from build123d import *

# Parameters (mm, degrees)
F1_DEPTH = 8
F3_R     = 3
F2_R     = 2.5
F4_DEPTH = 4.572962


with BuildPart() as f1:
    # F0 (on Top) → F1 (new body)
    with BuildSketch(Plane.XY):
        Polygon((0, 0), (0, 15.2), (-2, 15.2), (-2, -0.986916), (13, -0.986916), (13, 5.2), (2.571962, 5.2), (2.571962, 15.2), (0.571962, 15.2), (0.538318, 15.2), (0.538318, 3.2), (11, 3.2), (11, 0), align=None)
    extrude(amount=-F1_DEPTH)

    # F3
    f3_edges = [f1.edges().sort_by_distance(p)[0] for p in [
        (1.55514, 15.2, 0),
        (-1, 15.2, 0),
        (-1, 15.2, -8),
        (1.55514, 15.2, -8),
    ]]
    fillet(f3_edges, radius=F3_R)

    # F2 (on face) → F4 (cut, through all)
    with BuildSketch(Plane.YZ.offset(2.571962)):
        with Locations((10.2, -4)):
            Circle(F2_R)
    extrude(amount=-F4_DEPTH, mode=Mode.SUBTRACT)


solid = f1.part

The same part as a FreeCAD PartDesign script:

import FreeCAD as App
import Part
import Sketcher


def edges_at(feature, points):
    """Names of the edges that pass closest to the given points."""
    edges = feature.Shape.Edges
    near = lambda p: min(range(len(edges)), key=lambda i: edges[i].distToShape(Part.Vertex(*p))[0])
    return sorted({f"Edge{near(p) + 1}" for p in points})

doc = App.newDocument("Part")
body = doc.addObject("PartDesign::Body", "Body")

sketch1 = body.newObject("Sketcher::SketchObject", "Sketch")
sketch1.AttachmentSupport = (doc.getObject("XY_Plane"), [""])
sketch1.MapMode = "FlatFace"
sketch1.addGeometry(Part.LineSegment(App.Vector(0, 0, 0), App.Vector(0, 15.2, 0)), False)
sketch1.addGeometry(Part.LineSegment(App.Vector(0, 15.2, 0), App.Vector(-2, 15.2, 0)), False)
sketch1.addGeometry(Part.LineSegment(App.Vector(-2, 15.2, 0), App.Vector(-2, -1, 0)), False)
sketch1.addGeometry(Part.LineSegment(App.Vector(-2, -1, 0), App.Vector(13, -1, 0)), False)
sketch1.addGeometry(Part.LineSegment(App.Vector(13, -1, 0), App.Vector(13, 5.2, 0)), False)
sketch1.addGeometry(Part.LineSegment(App.Vector(13, 5.2, 0), App.Vector(2.6, 5.2, 0)), False)
sketch1.addGeometry(Part.LineSegment(App.Vector(2.6, 5.2, 0), App.Vector(2.6, 15.2, 0)), False)
sketch1.addGeometry(Part.LineSegment(App.Vector(2.6, 15.2, 0), App.Vector(0.5, 15.2, 0)), False)
sketch1.addGeometry(Part.LineSegment(App.Vector(0.5, 15.2, 0), App.Vector(0.5, 3.2, 0)), False)
sketch1.addGeometry(Part.LineSegment(App.Vector(0.5, 3.2, 0), App.Vector(11, 3.2, 0)), False)
sketch1.addGeometry(Part.LineSegment(App.Vector(11, 3.2, 0), App.Vector(11, 0, 0)), False)
sketch1.addGeometry(Part.LineSegment(App.Vector(11, 0, 0), App.Vector(0, 0, 0)), False)
sketch1.addConstraint(Sketcher.Constraint("Coincident", 0, 2, 1, 1))
sketch1.addConstraint(Sketcher.Constraint("Coincident", 1, 2, 2, 1))
sketch1.addConstraint(Sketcher.Constraint("Coincident", 2, 2, 3, 1))
sketch1.addConstraint(Sketcher.Constraint("Coincident", 3, 2, 4, 1))
sketch1.addConstraint(Sketcher.Constraint("Coincident", 4, 2, 5, 1))
sketch1.addConstraint(Sketcher.Constraint("Coincident", 5, 2, 6, 1))
sketch1.addConstraint(Sketcher.Constraint("Coincident", 6, 2, 7, 1))
sketch1.addConstraint(Sketcher.Constraint("Coincident", 7, 2, 8, 1))
sketch1.addConstraint(Sketcher.Constraint("Coincident", 8, 2, 9, 1))
sketch1.addConstraint(Sketcher.Constraint("Coincident", 9, 2, 10, 1))
sketch1.addConstraint(Sketcher.Constraint("Coincident", 10, 2, 11, 1))
sketch1.addConstraint(Sketcher.Constraint("Coincident", 11, 2, 0, 1))
sketch1.addConstraint(Sketcher.Constraint("Vertical", 0))
sketch1.addConstraint(Sketcher.Constraint("Horizontal", 1))
sketch1.addConstraint(Sketcher.Constraint("Vertical", 2))
sketch1.addConstraint(Sketcher.Constraint("Horizontal", 3))
sketch1.addConstraint(Sketcher.Constraint("Vertical", 4))
sketch1.addConstraint(Sketcher.Constraint("Horizontal", 5))
sketch1.addConstraint(Sketcher.Constraint("Vertical", 6))
sketch1.addConstraint(Sketcher.Constraint("Horizontal", 7))
sketch1.addConstraint(Sketcher.Constraint("Vertical", 8))
sketch1.addConstraint(Sketcher.Constraint("Horizontal", 9))
sketch1.addConstraint(Sketcher.Constraint("Vertical", 10))
sketch1.addConstraint(Sketcher.Constraint("Horizontal", 11))
sketch1.addConstraint(Sketcher.Constraint("Coincident", 11, 2, -1, 1))
sketch1.addConstraint(Sketcher.Constraint("Horizontal", 1, 2, 6, 2))
sketch1.addConstraint(Sketcher.Constraint("DistanceX", 1, 2, 1, 1, 2.0))
sketch1.addConstraint(Sketcher.Constraint("DistanceX", 3, 1, 3, 2, 15.0))
sketch1.addConstraint(Sketcher.Constraint("DistanceX", 11, 2, 11, 1, 11.0))
sketch1.addConstraint(Sketcher.Constraint("DistanceY", 6, 1, 6, 2, 10.0))
sketch1.addConstraint(Sketcher.Constraint("DistanceY", 8, 2, 8, 1, 12.0))
sketch1.addConstraint(Sketcher.Constraint("DistanceY", 0, 1, 0, 2, 15.2))
sketch1.addConstraint(Sketcher.Constraint("DistanceX", 5, 2, 5, 1, 10.428038))
sketch1.addConstraint(Sketcher.Constraint("DistanceX", 7, 2, 7, 1, 2.033644))
sketch1.addConstraint(Sketcher.Constraint("DistanceY", 2, 2, 2, 1, 16.186916))
pad1 = body.newObject("PartDesign::Pad", "Pad")
pad1.Profile = sketch1
pad1.Length = 8
pad1.Reversed = True
doc.recompute()

fillet = body.newObject("PartDesign::Fillet", "Fillet")
fillet.Base = (pad1, edges_at(pad1, [
    (1.555, 15.2, 0),
    (-1, 15.2, 0),
    (-1, 15.2, -8),
    (1.555, 15.2, -8),
]))
fillet.Radius = 3

sketch2 = body.newObject("Sketcher::SketchObject", "Sketch001")
sketch2.AttachmentSupport = (doc.getObject("YZ_Plane"), [""])
sketch2.MapMode = "FlatFace"
sketch2.AttachmentOffset = App.Placement(App.Vector(0, 0, 2.571962), App.Rotation())
sketch2.addGeometry(Part.Circle(App.Vector(10.2, -4, 0), App.Vector(0, 0, 1), 2.5), False)
sketch2.addConstraint(Sketcher.Constraint("Diameter", 0, 5.0))
sketch2.addConstraint(Sketcher.Constraint("DistanceY", 0, 3, -1, 1, 4.0))
sketch2.addConstraint(Sketcher.Constraint("DistanceX", -1, 1, 0, 3, 10.2))
pocket1 = body.newObject("PartDesign::Pocket", "Pocket")
pocket1.Profile = sketch2
pocket1.Type = "ThroughAll"

doc.recompute()
